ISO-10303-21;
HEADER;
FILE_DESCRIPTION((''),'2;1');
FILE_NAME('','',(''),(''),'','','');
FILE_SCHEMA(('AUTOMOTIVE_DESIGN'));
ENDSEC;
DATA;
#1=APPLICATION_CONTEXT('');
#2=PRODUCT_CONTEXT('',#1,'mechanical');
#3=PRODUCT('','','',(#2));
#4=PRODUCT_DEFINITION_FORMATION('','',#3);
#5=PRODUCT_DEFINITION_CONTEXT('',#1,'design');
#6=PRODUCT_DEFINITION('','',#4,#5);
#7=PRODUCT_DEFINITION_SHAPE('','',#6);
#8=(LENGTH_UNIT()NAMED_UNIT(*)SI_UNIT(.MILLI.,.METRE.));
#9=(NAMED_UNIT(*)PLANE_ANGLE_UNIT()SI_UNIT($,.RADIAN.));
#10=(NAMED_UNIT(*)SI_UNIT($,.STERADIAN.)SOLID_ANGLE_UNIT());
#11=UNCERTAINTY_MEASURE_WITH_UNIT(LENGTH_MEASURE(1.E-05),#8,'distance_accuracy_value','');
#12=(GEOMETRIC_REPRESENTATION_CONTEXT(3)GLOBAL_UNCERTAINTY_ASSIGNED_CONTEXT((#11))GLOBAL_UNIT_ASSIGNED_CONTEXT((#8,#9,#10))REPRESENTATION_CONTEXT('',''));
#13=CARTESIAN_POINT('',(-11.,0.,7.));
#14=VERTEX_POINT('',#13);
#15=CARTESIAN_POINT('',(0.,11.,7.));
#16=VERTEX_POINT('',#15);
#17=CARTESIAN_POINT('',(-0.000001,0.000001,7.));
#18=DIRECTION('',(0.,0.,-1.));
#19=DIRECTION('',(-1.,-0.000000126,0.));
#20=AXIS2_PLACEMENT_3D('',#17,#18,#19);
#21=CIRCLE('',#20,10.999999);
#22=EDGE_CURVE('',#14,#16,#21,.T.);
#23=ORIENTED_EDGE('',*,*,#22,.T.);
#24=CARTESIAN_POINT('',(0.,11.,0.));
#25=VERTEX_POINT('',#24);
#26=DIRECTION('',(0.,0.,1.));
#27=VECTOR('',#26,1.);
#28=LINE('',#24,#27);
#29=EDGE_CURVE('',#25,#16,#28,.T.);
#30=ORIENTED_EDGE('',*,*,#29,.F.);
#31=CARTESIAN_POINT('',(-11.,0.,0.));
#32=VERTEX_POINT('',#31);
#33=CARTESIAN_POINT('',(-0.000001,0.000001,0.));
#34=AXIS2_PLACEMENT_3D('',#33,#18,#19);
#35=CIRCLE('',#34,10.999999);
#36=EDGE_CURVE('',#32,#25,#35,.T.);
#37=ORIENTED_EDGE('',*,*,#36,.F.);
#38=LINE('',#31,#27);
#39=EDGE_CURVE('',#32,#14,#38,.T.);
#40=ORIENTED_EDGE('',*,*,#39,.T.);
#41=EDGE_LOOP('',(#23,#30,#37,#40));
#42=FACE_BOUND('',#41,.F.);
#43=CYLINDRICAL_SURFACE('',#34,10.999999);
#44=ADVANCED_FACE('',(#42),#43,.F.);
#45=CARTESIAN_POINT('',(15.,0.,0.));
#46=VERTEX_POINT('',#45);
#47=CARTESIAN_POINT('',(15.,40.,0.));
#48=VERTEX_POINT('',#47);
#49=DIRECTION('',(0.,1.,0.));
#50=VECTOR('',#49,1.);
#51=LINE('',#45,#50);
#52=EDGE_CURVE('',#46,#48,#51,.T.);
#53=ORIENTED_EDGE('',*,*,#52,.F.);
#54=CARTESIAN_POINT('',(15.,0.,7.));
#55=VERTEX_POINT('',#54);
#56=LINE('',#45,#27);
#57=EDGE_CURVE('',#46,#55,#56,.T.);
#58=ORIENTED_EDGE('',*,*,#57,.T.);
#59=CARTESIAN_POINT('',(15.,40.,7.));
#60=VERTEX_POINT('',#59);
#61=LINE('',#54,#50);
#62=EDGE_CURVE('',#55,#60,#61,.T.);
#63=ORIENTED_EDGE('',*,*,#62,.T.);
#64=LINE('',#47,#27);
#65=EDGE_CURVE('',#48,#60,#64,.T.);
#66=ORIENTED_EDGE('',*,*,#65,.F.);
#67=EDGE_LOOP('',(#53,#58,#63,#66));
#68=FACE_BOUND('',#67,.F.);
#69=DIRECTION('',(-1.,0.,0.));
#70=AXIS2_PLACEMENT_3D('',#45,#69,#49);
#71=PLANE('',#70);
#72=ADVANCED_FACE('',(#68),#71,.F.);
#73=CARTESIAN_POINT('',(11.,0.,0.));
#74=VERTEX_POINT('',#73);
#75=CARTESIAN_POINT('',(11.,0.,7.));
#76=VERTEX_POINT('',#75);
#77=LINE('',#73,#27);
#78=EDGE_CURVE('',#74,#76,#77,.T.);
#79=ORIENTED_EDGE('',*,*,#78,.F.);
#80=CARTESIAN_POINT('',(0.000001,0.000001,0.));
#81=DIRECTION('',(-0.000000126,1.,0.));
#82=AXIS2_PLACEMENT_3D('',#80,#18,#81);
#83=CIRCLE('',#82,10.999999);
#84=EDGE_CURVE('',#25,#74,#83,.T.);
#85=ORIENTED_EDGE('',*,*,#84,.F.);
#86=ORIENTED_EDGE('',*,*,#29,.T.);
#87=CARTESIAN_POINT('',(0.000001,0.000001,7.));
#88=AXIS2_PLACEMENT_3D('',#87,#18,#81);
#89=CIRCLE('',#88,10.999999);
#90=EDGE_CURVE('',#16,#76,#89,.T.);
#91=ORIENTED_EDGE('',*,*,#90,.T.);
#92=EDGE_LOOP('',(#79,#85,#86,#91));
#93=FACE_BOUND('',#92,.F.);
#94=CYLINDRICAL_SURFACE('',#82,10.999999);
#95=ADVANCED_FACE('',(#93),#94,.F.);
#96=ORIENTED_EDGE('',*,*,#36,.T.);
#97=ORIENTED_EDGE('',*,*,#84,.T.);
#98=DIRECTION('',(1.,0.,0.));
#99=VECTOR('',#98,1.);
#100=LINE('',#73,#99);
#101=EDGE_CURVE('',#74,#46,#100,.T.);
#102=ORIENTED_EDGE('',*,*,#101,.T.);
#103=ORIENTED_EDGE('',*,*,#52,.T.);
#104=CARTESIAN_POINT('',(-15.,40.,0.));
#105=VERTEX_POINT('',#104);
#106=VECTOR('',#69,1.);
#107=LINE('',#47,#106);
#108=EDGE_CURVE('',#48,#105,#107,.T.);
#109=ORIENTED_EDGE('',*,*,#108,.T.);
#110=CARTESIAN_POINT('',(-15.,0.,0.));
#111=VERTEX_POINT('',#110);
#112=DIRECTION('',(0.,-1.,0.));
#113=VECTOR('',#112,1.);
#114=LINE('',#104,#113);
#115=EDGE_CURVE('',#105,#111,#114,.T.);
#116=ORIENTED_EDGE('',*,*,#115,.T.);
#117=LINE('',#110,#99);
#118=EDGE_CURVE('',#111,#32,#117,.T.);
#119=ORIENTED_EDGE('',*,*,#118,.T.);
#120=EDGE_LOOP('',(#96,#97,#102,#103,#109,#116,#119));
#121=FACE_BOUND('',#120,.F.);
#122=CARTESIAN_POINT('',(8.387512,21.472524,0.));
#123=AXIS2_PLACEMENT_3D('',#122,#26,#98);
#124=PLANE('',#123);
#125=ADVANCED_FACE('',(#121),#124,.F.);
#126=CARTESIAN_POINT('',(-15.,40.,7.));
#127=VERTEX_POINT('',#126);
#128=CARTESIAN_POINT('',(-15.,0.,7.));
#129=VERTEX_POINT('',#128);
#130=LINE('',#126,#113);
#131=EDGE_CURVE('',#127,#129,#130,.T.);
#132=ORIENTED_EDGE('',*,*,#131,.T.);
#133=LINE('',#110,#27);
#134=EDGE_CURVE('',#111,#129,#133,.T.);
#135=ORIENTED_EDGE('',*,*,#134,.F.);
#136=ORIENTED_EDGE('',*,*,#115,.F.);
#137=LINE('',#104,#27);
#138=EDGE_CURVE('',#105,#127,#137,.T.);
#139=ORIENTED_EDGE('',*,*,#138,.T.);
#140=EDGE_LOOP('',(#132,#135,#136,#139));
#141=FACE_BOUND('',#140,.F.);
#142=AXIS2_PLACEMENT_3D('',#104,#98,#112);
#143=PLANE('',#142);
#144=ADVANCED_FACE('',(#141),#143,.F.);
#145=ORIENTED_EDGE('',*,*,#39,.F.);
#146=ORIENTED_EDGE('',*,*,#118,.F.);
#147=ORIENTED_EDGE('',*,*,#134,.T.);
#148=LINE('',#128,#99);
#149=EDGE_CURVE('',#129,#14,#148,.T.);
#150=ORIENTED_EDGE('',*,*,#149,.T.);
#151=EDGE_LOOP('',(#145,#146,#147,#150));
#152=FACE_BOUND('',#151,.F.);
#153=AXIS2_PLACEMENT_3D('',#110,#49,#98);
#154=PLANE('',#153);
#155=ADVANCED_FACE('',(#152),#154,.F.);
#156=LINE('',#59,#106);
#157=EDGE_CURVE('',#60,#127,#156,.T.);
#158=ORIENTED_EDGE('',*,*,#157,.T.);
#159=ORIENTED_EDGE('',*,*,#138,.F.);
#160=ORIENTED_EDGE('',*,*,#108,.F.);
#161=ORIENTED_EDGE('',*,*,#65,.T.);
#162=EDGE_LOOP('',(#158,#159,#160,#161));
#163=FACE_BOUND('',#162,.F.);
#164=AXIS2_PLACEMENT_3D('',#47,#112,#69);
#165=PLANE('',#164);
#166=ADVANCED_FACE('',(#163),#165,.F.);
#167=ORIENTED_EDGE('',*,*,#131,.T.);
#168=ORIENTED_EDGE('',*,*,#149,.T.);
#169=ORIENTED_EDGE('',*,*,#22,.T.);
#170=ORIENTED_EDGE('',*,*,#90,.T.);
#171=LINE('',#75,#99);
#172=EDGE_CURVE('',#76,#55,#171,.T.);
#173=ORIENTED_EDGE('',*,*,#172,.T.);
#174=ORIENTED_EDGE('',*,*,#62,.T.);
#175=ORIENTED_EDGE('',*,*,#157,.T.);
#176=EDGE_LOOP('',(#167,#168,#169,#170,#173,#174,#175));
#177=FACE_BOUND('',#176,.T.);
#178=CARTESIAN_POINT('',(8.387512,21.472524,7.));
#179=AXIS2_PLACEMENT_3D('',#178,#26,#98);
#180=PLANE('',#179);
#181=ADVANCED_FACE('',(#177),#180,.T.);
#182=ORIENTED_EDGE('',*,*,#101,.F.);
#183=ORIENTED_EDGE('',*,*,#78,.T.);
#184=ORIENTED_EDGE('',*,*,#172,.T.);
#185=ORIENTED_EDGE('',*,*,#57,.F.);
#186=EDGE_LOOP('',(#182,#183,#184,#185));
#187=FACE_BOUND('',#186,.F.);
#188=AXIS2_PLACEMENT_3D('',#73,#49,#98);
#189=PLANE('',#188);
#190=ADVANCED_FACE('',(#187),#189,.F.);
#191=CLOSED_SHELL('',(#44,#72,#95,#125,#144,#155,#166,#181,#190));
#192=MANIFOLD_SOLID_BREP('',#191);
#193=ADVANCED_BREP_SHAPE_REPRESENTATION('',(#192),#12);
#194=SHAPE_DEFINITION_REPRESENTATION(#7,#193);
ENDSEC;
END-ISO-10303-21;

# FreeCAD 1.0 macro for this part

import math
import FreeCAD as App
import Part
import Sketcher
from FreeCAD import Vector
Q = App.Units.Quantity

doc = App.newDocument("Part")
body = doc.addObject("PartDesign::Body", "Body")

sketch1 = body.newObject("Sketcher::SketchObject", "Sketch")
sketch1.AttachmentSupport = (doc.getObject("XY_Plane"), [""])
sketch1.MapMode = "FlatFace"
sketch1.addGeometry([
    Part.ArcOfCircle(Part.Circle(Vector(0.000001, 0.000001, 0), Vector(0, 0, 1), 10.999999), math.radians(-0.000007), math.radians(90.000007)),
    Part.LineSegment(Vector(11, 0, 0), Vector(15, 0, 0)),
    Part.LineSegment(Vector(15, 0, 0), Vector(15, 40, 0)),
    Part.LineSegment(Vector(15, 40, 0), Vector(-15, 40, 0)),
    Part.LineSegment(Vector(-15, 40, 0), Vector(-15, 0, 0)),
    Part.LineSegment(Vector(-15, 0, 0), Vector(-11, 0, 0)),
    Part.ArcOfCircle(Part.Circle(Vector(-0.000001, 0.000001, 0), Vector(0, 0, 1), 10.999999), math.radians(89.999993), math.radians(180.000007)),
], False)
sketch1.addConstraint([
    Sketcher.Constraint("Coincident", 0, 1, 1, 1),
    Sketcher.Constraint("Coincident", 1, 2, 2, 1),
    Sketcher.Constraint("Coincident", 2, 2, 3, 1),
    Sketcher.Constraint("Coincident", 3, 2, 4, 1),
    Sketcher.Constraint("Coincident", 4, 2, 5, 1),
    Sketcher.Constraint("Coincident", 5, 2, 6, 2),
    Sketcher.Constraint("Tangent", 6, 1, 0, 2),
    Sketcher.Constraint("Horizontal", 1),
    Sketcher.Constraint("Vertical", 2),
    Sketcher.Constraint("Horizontal", 3),
    Sketcher.Constraint("Vertical", 4),
    Sketcher.Constraint("Horizontal", 5),
    Sketcher.Constraint("Coincident", 0, 3, -1, 1),
    Sketcher.Constraint("Equal", 0, 6),
    Sketcher.Constraint("Symmetric", 1, 2, 4, 2, -1, 1),
    Sketcher.Constraint("PointOnObject", 0, 1, -1),
    Sketcher.Constraint("PointOnObject", 6, 1, -2),
    Sketcher.Constraint("Radius", 0, Q("10.999999 mm")),
    Sketcher.Constraint("DistanceX", 1, 1, 1, 2, Q("4 mm")),
    Sketcher.Constraint("DistanceY", 2, 1, 2, 2, Q("40 mm")),
])
pad1 = body.newObject("PartDesign::Pad", "Pad")
pad1.Profile = sketch1
pad1.Length = 7

doc.recompute()
